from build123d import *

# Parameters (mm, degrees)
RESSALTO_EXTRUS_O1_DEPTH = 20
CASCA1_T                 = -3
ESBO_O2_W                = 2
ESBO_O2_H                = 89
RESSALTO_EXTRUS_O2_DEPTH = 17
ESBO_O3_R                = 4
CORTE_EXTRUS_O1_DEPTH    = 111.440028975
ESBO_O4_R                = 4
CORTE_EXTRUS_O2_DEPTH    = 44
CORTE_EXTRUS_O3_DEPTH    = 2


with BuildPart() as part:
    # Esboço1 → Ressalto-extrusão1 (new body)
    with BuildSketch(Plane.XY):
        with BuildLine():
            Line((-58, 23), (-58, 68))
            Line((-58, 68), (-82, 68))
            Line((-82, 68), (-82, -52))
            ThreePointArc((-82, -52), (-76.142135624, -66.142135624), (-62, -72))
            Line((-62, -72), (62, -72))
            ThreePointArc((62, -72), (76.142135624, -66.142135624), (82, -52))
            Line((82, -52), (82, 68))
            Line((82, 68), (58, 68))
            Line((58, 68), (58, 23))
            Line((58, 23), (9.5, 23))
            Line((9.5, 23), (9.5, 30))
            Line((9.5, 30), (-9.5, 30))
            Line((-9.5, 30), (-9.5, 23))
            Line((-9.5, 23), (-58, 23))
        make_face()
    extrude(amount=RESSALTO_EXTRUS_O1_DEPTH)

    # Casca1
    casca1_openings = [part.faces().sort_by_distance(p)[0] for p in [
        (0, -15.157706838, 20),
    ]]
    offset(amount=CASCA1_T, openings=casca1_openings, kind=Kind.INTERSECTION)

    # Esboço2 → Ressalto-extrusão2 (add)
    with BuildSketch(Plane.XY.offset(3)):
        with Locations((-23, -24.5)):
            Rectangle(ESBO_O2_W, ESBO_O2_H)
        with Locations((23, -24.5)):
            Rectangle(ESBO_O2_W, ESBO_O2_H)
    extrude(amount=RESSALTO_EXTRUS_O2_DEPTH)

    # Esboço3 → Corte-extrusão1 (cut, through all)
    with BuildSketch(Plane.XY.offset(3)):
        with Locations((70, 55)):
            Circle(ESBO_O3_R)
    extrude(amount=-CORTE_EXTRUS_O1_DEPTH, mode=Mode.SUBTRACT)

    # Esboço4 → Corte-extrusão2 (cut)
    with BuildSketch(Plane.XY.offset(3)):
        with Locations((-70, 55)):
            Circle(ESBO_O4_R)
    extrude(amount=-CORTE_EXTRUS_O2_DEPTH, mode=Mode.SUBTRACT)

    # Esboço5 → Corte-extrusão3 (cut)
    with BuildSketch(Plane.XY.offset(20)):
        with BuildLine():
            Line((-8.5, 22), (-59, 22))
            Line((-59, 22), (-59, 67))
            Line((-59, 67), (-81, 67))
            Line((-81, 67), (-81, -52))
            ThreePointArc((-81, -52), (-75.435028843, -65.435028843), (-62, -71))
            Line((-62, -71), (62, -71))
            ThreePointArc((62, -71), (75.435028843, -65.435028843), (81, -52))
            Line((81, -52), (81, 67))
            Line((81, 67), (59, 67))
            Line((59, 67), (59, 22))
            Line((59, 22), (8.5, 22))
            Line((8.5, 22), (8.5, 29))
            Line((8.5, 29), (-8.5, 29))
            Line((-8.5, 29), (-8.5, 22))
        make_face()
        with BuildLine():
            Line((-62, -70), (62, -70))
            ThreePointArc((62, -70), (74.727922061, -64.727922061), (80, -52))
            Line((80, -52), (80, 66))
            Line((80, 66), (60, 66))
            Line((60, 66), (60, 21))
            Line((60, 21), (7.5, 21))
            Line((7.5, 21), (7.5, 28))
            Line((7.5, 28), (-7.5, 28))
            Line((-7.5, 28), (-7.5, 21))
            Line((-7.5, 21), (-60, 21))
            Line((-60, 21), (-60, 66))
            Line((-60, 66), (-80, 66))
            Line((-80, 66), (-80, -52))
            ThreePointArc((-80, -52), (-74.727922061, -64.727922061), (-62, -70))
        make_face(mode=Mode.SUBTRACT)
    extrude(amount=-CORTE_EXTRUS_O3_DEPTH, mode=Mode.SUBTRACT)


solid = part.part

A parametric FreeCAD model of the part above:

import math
import FreeCAD as App
import Part
import Sketcher

V = App.Vector
Q = App.Units.Quantity


def faces_at(feature, points):
    """Names of the faces that lie closest to the given points."""
    faces = feature.Shape.Faces
    near = lambda p: min(range(len(faces)), key=lambda i: faces[i].distToShape(Part.Vertex(*p))[0])
    return sorted({f"Face{near(p) + 1}" for p in points})


def add_polygon(sketch, points):
    """Adds a closed chain of lines whose ends are joined by coincident constraints."""
    first, n = sketch.GeometryCount, len(points)
    for a, b in zip(points, points[1:] + points[:1]):
        sketch.addGeometry(Part.LineSegment(App.Vector(*a, 0), App.Vector(*b, 0)), False)
    for i in range(n):
        sketch.addConstraint(Sketcher.Constraint("Coincident", first + i, 2, first + (i + 1) % n, 1))

doc = App.newDocument("Part")
body = doc.addObject("PartDesign::Body", "Body")

sketch1 = body.newObject("Sketcher::SketchObject", "Sketch")
sketch1.AttachmentSupport = (doc.getObject("XY_Plane"), [""])
sketch1.MapMode = "FlatFace"
sketch1.addGeometry([
    Part.LineSegment(V(-58, 23, 0), V(-58, 68, 0)),
    Part.LineSegment(V(-58, 68, 0), V(-82, 68, 0)),
    Part.LineSegment(V(-82, 68, 0), V(-82, -52, 0)),
    Part.ArcOfCircle(Part.Circle(V(-62, -52, 0), V(0, 0, 1), 20), math.radians(180), math.radians(270)),
    Part.LineSegment(V(-62, -72, 0), V(62, -72, 0)),
    Part.ArcOfCircle(Part.Circle(V(62, -52, 0), V(0, 0, 1), 20), math.radians(-90), math.radians(0)),
    Part.LineSegment(V(82, -52, 0), V(82, 68, 0)),
    Part.LineSegment(V(82, 68, 0), V(58, 68, 0)),
    Part.LineSegment(V(58, 68, 0), V(58, 23, 0)),
    Part.LineSegment(V(58, 23, 0), V(10, 23, 0)),
    Part.LineSegment(V(10, 23, 0), V(10, 30, 0)),
    Part.LineSegment(V(10, 30, 0), V(-10, 30, 0)),
    Part.LineSegment(V(-10, 30, 0), V(-10, 23, 0)),
    Part.LineSegment(V(-10, 23, 0), V(-58, 23, 0)),
], False)
sketch1.addConstraint([
    Sketcher.Constraint("Coincident", 0, 2, 1, 1),
    Sketcher.Constraint("Coincident", 1, 2, 2, 1),
    Sketcher.Constraint("Tangent", 2, 2, 3, 1),
    Sketcher.Constraint("Tangent", 3, 2, 4, 1),
    Sketcher.Constraint("Tangent", 4, 2, 5, 1),
    Sketcher.Constraint("Tangent", 5, 2, 6, 1),
    Sketcher.Constraint("Coincident", 6, 2, 7, 1),
    Sketcher.Constraint("Coincident", 7, 2, 8, 1),
    Sketcher.Constraint("Coincident", 8, 2, 9, 1),
    Sketcher.Constraint("Coincident", 9, 2, 10, 1),
    Sketcher.Constraint("Coincident", 10, 2, 11, 1),
    Sketcher.Constraint("Coincident", 11, 2, 12, 1),
    Sketcher.Constraint("Coincident", 12, 2, 13, 1),
    Sketcher.Constraint("Coincident", 13, 2, 0, 1),
    Sketcher.Constraint("Vertical", 0),
    Sketcher.Constraint("Horizontal", 1),
    Sketcher.Constraint("Vertical", 2),
    Sketcher.Constraint("Horizontal", 4),
    Sketcher.Constraint("Vertical", 6),
    Sketcher.Constraint("Horizontal", 7),
    Sketcher.Constraint("Vertical", 8),
    Sketcher.Constraint("Horizontal", 9),
    Sketcher.Constraint("Vertical", 10),
    Sketcher.Constraint("Horizontal", 11),
    Sketcher.Constraint("Vertical", 12),
    Sketcher.Constraint("Horizontal", 13),
    Sketcher.Constraint("Equal", 3, 5),
    Sketcher.Constraint("Symmetric", 1, 2, 6, 2, -2),
    Sketcher.Constraint("Symmetric", 9, 2, 12, 2, -2),
    Sketcher.Constraint("Equal", 1, 7),
    Sketcher.Constraint("Radius", 3, Q("20 mm")),
    Sketcher.Constraint("DistanceX", 1, 2, 1, 1, Q("24 mm")),
    Sketcher.Constraint("DistanceX", 4, 1, 4, 2, Q("124 mm")),
    Sketcher.Constraint("DistanceX", 11, 2, 11, 1, Q("19 mm")),
    Sketcher.Constraint("DistanceY", 0, 1, 0, 2, Q("45 mm")),
    Sketcher.Constraint("DistanceY", 2, 2, 2, 1, Q("120 mm")),
    Sketcher.Constraint("DistanceY", 10, 1, 10, 2, Q("7 mm")),
    Sketcher.Constraint("DistanceY", 3, 3, -1, 1, Q("52 mm")),
])
pad1 = body.newObject("PartDesign::Pad", "Pad")
pad1.Profile = sketch1
pad1.Length = 20
doc.recompute()

thickness = body.newObject("PartDesign::Thickness", "Thickness")
thickness.Base = (pad1, faces_at(pad1, [(0, -2, 20)]))
thickness.Value = 3
thickness.Reversed = True
thickness.Join = "Intersection"

sketch2 = body.newObject("Sketcher::SketchObject", "Sketch001")
sketch2.AttachmentSupport = (doc.getObject("XY_Plane"), [""])
sketch2.MapMode = "FlatFace"
sketch2.AttachmentOffset = App.Placement(V(0, 0, 3), App.Rotation())
add_polygon(sketch2, [(-24, 20), (-24, -69), (-22, -69), (-22, 20)])
add_polygon(sketch2, [(22, 20), (22, -69), (24, -69), (24, 20)])
sketch2.addConstraint([
    Sketcher.Constraint("Vertical", 0),
    Sketcher.Constraint("Horizontal", 1),
    Sketcher.Constraint("Vertical", 2),
    Sketcher.Constraint("Horizontal", 3),
    Sketcher.Constraint("Vertical", 4),
    Sketcher.Constraint("Horizontal", 5),
    Sketcher.Constraint("Vertical", 6),
    Sketcher.Constraint("Horizontal", 7),
    Sketcher.Constraint("Symmetric", 1, 2, 4, 2, -2),
    Sketcher.Constraint("Symmetric", 3, 2, 6, 2, -2),
    Sketcher.Constraint("DistanceX", 1, 1, 1, 2, Q("2 mm")),
    Sketcher.Constraint("DistanceY", 0, 2, 0, 1, Q("89 mm")),
    Sketcher.Constraint("DistanceX", 0, 2, -1, 1, Q("24 mm")),
    Sketcher.Constraint("DistanceY", 0, 2, -1, 1, Q("69 mm")),
])
pad2 = body.newObject("PartDesign::Pad", "Pad001")
pad2.Profile = sketch2
pad2.Length = 17

sketch3 = body.newObject("Sketcher::SketchObject", "Sketch002")
sketch3.AttachmentSupport = (doc.getObject("XY_Plane"), [""])
sketch3.MapMode = "FlatFace"
sketch3.AttachmentOffset = App.Placement(V(0, 0, 3), App.Rotation())
sketch3.addGeometry(Part.Circle(V(70, 55, 0), V(0, 0, 1), 4), False)
sketch3.addConstraint([
    Sketcher.Constraint("Diameter", 0, Q("8 mm")),
    Sketcher.Constraint("DistanceX", -1, 1, 0, 3, Q("70 mm")),
    Sketcher.Constraint("DistanceY", -1, 1, 0, 3, Q("55 mm")),
])
pocket1 = body.newObject("PartDesign::Pocket", "Pocket")
pocket1.Profile = sketch3
pocket1.Type = "ThroughAll"

sketch4 = body.newObject("Sketcher::SketchObject", "Sketch003")
sketch4.AttachmentSupport = (doc.getObject("XY_Plane"), [""])
sketch4.MapMode = "FlatFace"
sketch4.AttachmentOffset = App.Placement(V(0, 0, 3), App.Rotation())
sketch4.addGeometry(Part.Circle(V(-70, 55, 0), V(0, 0, 1), 4), False)
sketch4.addConstraint([
    Sketcher.Constraint("Diameter", 0, Q("8 mm")),
    Sketcher.Constraint("DistanceX", 0, 3, -1, 1, Q("70 mm")),
    Sketcher.Constraint("DistanceY", -1, 1, 0, 3, Q("55 mm")),
])
pocket2 = body.newObject("PartDesign::Pocket", "Pocket001")
pocket2.Profile = sketch4
pocket2.Length = 44

sketch5 = body.newObject("Sketcher::SketchObject", "Sketch004")
sketch5.AttachmentSupport = (doc.getObject("XY_Plane"), [""])
sketch5.MapMode = "FlatFace"
sketch5.AttachmentOffset = App.Placement(V(0, 0, 20), App.Rotation())
sketch5.addGeometry([
    Part.LineSegment(V(-8, 22, 0), V(-59, 22, 0)),
    Part.LineSegment(V(-59, 22, 0), V(-59, 67, 0)),
    Part.LineSegment(V(-59, 67, 0), V(-81, 67, 0)),
    Part.LineSegment(V(-81, 67, 0), V(-81, -52, 0)),
    Part.ArcOfCircle(Part.Circle(V(-62, -52, 0), V(0, 0, 1), 19), math.radians(180), math.radians(270)),
    Part.LineSegment(V(-62, -71, 0), V(62, -71, 0)),
    Part.ArcOfCircle(Part.Circle(V(62, -52, 0), V(0, 0, 1), 19), math.radians(-90), math.radians(0)),
    Part.LineSegment(V(81, -52, 0), V(81, 67, 0)),
    Part.LineSegment(V(81, 67, 0), V(59, 67, 0)),
    Part.LineSegment(V(59, 67, 0), V(59, 22, 0)),
    Part.LineSegment(V(59, 22, 0), V(8, 22, 0)),
    Part.LineSegment(V(8, 22, 0), V(8, 29, 0)),
    Part.LineSegment(V(8, 29, 0), V(-8, 29, 0)),
    Part.LineSegment(V(-8, 29, 0), V(-8, 22, 0)),
    Part.LineSegment(V(62, -70, 0), V(-62, -70, 0)),
    Part.ArcOfCircle(Part.Circle(V(-62, -52, 0), V(0, 0, 1), 18), math.radians(-180), math.radians(-90)),
    Part.LineSegment(V(-80, -52, 0), V(-80, 66, 0)),
    Part.LineSegment(V(-80, 66, 0), V(-60, 66, 0)),
    Part.LineSegment(V(-60, 66, 0), V(-60, 21, 0)),
    Part.LineSegment(V(-60, 21, 0), V(-8, 21, 0)),
    Part.LineSegment(V(-8, 21, 0), V(-8, 28, 0)),
    Part.LineSegment(V(-8, 28, 0), V(8, 28, 0)),
    Part.LineSegment(V(8, 28, 0), V(8, 21, 0)),
    Part.LineSegment(V(8, 21, 0), V(60, 21, 0)),
    Part.LineSegment(V(60, 21, 0), V(60, 66, 0)),
    Part.LineSegment(V(60, 66, 0), V(80, 66, 0)),
    Part.LineSegment(V(80, 66, 0), V(80, -52, 0)),
    Part.ArcOfCircle(Part.Circle(V(62, -52, 0), V(0, 0, 1), 18), math.radians(-90), math.radians(0)),
], False)
sketch5.addConstraint([
    Sketcher.Constraint("Coincident", 0, 2, 1, 1),
    Sketcher.Constraint("Coincident", 1, 2, 2, 1),
    Sketcher.Constraint("Coincident", 2, 2, 3, 1),
    Sketcher.Constraint("Tangent", 3, 2, 4, 1),
    Sketcher.Constraint("Tangent", 4, 2, 5, 1),
    Sketcher.Constraint("Tangent", 5, 2, 6, 1),
    Sketcher.Constraint("Tangent", 6, 2, 7, 1),
    Sketcher.Constraint("Coincident", 7, 2, 8, 1),
    Sketcher.Constraint("Coincident", 8, 2, 9, 1),
    Sketcher.Constraint("Coincident", 9, 2, 10, 1),
    Sketcher.Constraint("Coincident", 10, 2, 11, 1),
    Sketcher.Constraint("Coincident", 11, 2, 12, 1),
    Sketcher.Constraint("Coincident", 12, 2, 13, 1),
    Sketcher.Constraint("Coincident", 13, 2, 0, 1),
    Sketcher.Constraint("Tangent", 14, 2, 15, 2),
    Sketcher.Constraint("Tangent", 15, 1, 16, 1),
    Sketcher.Constraint("Coincident", 16, 2, 17, 1),
    Sketcher.Constraint("Coincident", 17, 2, 18, 1),
    Sketcher.Constraint("Coincident", 18, 2, 19, 1),
    Sketcher.Constraint("Coincident", 19, 2, 20, 1),
    Sketcher.Constraint("Coincident", 20, 2, 21, 1),
    Sketcher.Constraint("Coincident", 21, 2, 22, 1),
    Sketcher.Constraint("Coincident", 22, 2, 23, 1),
    Sketcher.Constraint("Coincident", 23, 2, 24, 1),
    Sketcher.Constraint("Coincident", 24, 2, 25, 1),
    Sketcher.Constraint("Coincident", 25, 2, 26, 1),
    Sketcher.Constraint("Tangent", 26, 2, 27, 2),
    Sketcher.Constraint("Tangent", 27, 1, 14, 1),
    Sketcher.Constraint("Horizontal", 0),
    Sketcher.Constraint("Vertical", 1),
    Sketcher.Constraint("Horizontal", 2),
    Sketcher.Constraint("Vertical", 3),
    Sketcher.Constraint("Horizontal", 5),
    Sketcher.Constraint("Vertical", 7),
    Sketcher.Constraint("Horizontal", 8),
    Sketcher.Constraint("Vertical", 9),
    Sketcher.Constraint("Horizontal", 10),
    Sketcher.Constraint("Vertical", 11),
    Sketcher.Constraint("Horizontal", 12),
    Sketcher.Constraint("Vertical", 13),
    Sketcher.Constraint("Horizontal", 14),
    Sketcher.Constraint("Vertical", 16),
    Sketcher.Constraint("Horizontal", 17),
    Sketcher.Constraint("Vertical", 18),
    Sketcher.Constraint("Horizontal", 19),
    Sketcher.Constraint("Vertical", 20),
    Sketcher.Constraint("Horizontal", 21),
    Sketcher.Constraint("Vertical", 22),
    Sketcher.Constraint("Horizontal", 23),
    Sketcher.Constraint("Vertical", 24),
    Sketcher.Constraint("Horizontal", 25),
    Sketcher.Constraint("Vertical", 26),
    Sketcher.Constraint("Coincident", 15, 3, 4, 3),
    Sketcher.Constraint("Coincident", 27, 3, 6, 3),
    Sketcher.Constraint("Equal", 4, 6),
    Sketcher.Constraint("Symmetric", 2, 2, 7, 2, -2),
    Sketcher.Constraint("Symmetric", 0, 2, 9, 2, -2),
    Sketcher.Constraint("Symmetric", 19, 2, 22, 2, -2),
    Sketcher.Constraint("Symmetric", 17, 2, 24, 2, -2),
    Sketcher.Constraint("Equal", 0, 10),
    Sketcher.Constraint("Equal", 9, 18),
    Sketcher.Constraint("Equal", 13, 20),
    Sketcher.Constraint("Radius", 4, Q("19 mm")),
    Sketcher.Constraint("Radius", 15, Q("18 mm")),
    Sketcher.Constraint("DistanceX", 2, 2, 2, 1, Q("22 mm")),
    Sketcher.Constraint("DistanceX", 5, 1, 5, 2, Q("124 mm")),
    Sketcher.Constraint("DistanceX", 12, 2, 12, 1, Q("17 mm")),
    Sketcher.Constraint("DistanceX", 17, 1, 17, 2, Q("20 mm")),
    Sketcher.Constraint("DistanceX", 21, 1, 21, 2, Q("15 mm")),
    Sketcher.Constraint("DistanceY", 1, 1, 1, 2, Q("45 mm")),
    Sketcher.Constraint("DistanceY", 3, 2, 3, 1, Q("119 mm")),
    Sketcher.Constraint("DistanceY", 11, 1, 11, 2, Q("7 mm")),
    Sketcher.Constraint("DistanceY", 16, 1, 16, 2, Q("118 mm")),
    Sketcher.Constraint("DistanceY", 4, 3, -1, 1, Q("52 mm")),
])
pocket3 = body.newObject("PartDesign::Pocket", "Pocket002")
pocket3.Profile = sketch5
pocket3.Length = 2

doc.recompute()
